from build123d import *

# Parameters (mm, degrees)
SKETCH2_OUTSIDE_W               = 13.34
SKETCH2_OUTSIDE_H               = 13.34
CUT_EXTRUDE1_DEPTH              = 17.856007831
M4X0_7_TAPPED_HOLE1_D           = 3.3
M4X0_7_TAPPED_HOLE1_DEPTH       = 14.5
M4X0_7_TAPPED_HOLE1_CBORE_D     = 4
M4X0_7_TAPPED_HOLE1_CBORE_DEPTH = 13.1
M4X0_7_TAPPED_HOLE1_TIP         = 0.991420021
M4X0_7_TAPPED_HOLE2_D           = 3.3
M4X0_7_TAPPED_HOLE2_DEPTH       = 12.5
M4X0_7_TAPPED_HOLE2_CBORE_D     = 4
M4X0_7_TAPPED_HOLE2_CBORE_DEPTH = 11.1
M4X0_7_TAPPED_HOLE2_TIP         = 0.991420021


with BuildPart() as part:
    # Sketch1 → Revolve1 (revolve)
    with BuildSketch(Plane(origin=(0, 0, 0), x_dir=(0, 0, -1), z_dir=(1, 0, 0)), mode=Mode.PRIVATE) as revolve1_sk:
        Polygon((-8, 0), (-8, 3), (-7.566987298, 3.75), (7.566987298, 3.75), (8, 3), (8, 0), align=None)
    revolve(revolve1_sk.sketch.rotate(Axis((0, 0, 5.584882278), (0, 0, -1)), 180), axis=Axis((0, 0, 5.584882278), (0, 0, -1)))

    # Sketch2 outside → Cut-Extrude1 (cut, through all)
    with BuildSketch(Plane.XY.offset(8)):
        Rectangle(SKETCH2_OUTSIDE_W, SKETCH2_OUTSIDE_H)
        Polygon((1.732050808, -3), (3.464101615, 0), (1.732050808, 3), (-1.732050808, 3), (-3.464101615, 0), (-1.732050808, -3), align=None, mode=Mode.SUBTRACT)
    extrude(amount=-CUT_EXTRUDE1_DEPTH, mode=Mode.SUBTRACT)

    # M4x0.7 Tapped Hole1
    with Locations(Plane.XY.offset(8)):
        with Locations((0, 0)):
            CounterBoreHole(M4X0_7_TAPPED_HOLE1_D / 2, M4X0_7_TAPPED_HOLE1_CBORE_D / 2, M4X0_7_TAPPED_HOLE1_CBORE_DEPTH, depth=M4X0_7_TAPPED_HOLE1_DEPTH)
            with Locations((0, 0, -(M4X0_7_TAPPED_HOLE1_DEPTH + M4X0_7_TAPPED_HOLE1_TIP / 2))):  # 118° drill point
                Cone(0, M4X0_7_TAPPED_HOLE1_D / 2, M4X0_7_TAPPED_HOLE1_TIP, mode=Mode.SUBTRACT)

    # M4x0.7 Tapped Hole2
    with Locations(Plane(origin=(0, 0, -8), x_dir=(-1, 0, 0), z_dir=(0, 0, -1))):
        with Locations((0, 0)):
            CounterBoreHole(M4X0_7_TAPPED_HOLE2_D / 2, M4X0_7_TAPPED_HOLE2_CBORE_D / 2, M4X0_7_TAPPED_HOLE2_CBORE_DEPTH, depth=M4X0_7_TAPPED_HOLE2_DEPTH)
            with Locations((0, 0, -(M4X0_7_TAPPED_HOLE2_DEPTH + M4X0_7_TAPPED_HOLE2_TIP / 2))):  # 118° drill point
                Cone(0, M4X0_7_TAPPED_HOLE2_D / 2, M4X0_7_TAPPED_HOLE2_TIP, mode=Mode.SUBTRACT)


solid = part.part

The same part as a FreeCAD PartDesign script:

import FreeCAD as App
import Part
import Sketcher

V = App.Vector
Q = App.Units.Quantity


def add_polygon(sketch, points):
    """Adds a closed chain of lines whose ends are joined by coincident constraints."""
    first, n = sketch.GeometryCount, len(points)
    for a, b in zip(points, points[1:] + points[:1]):
        sketch.addGeometry(Part.LineSegment(App.Vector(*a, 0), App.Vector(*b, 0)), False)
    for i in range(n):
        sketch.addConstraint(Sketcher.Constraint("Coincident", first + i, 2, first + (i + 1) % n, 1))

doc = App.newDocument("Part")
body = doc.addObject("PartDesign::Body", "Body")

# Sketch on YZ plane
sketch1 = body.newObject("Sketcher::SketchObject", "Sketch")
sketch1.AttachmentSupport = (doc.getObject("YZ_Plane"), [""])
sketch1.MapMode = "FlatFace"
add_polygon(sketch1, [(3, 8), (0, 8), (0, -8), (3, -8), (3.8, -7.6), (3.8, 7.6)])  # lines 0-5
sketch1.addConstraint([
    Sketcher.Constraint("Horizontal", 0),
    Sketcher.Constraint("Vertical", 1),
    Sketcher.Constraint("Horizontal", 2),
    Sketcher.Constraint("Vertical", 4),
    Sketcher.Constraint("Symmetric", 0, 2, 1, 2, -1, 1),
    Sketcher.Constraint("Vertical", 2, 2, 5, 2),
    Sketcher.Constraint("Equal", 3, 5),
    Sketcher.Constraint("DistanceX", 0, 2, 0, 1, Q("3 mm")),
    Sketcher.Constraint("DistanceY", 1, 2, 1, 1, Q("16 mm")),
    Sketcher.Constraint("Angle", 3, Q("30 deg")),
    Sketcher.Constraint("DistanceX", -1, 1, 3, 2, Q("3.75 mm")),
])
revolution = body.newObject("PartDesign::Revolution", "Revolution")
revolution.Profile = sketch1
revolution.ReferenceAxis = (sketch1, ["V_Axis"])
revolution.Angle = 360

# Sketch on XY plane
sketch2 = body.newObject("Sketcher::SketchObject", "Sketch001")
sketch2.AttachmentSupport = (doc.getObject("XY_Plane"), [""])
sketch2.MapMode = "FlatFace"
sketch2.AttachmentOffset = App.Placement(V(0, 0, 8), App.Rotation())
add_polygon(sketch2, [(-6.7, 6.7), (-6.7, -6.7), (6.7, -6.7), (6.7, 6.7)])  # lines 0-3
add_polygon(sketch2, [(3.5, 0), (1.7, -3), (-1.7, -3), (-3.5, 0), (-1.7, 3), (1.7, 3)])  # lines 4-9
sketch2.addConstraint([
    Sketcher.Constraint("Vertical", 0),
    Sketcher.Constraint("Horizontal", 1),
    Sketcher.Constraint("Vertical", 2),
    Sketcher.Constraint("Horizontal", 3),
    Sketcher.Constraint("Horizontal", 5),
    Sketcher.Constraint("Horizontal", 8),
    Sketcher.Constraint("Symmetric", 0, 2, 2, 2, -1, 1),
    Sketcher.Constraint("Symmetric", 4, 2, 7, 2, -1, 1),
    Sketcher.Constraint("Symmetric", 6, 2, 9, 2, -1, 1),
    Sketcher.Constraint("PointOnObject", 6, 2, -1),
    Sketcher.Constraint("Parallel", 6, 9),
    Sketcher.Constraint("Vertical", 5, 2, 7, 2),
    Sketcher.Constraint("Equal", 3, 0),
    Sketcher.Constraint("Angle", 4, Q("-120 deg")),
    Sketcher.Constraint("DistanceY", 4, 2, -1, 1, Q("3 mm")),
    Sketcher.Constraint("DistanceX", 1, 1, 1, 2, Q("13.34 mm")),
    Sketcher.Constraint("DistanceX", 5, 2, 5, 1, Q("3.464102 mm")),
])
pocket1 = body.newObject("PartDesign::Pocket", "Pocket")
pocket1.Profile = sketch2
pocket1.Type = "ThroughAll"

# Sketch on XY plane
sketch3 = body.newObject("Sketcher::SketchObject", "Sketch002")
sketch3.AttachmentSupport = (doc.getObject("XY_Plane"), [""])
sketch3.MapMode = "FlatFace"
sketch3.AttachmentOffset = App.Placement(V(0, 0, 8), App.Rotation())
sketch3.addGeometry(Part.Circle(V(0, 0, 0), V(0, 0, 1), 1.6), False)
sketch3.addConstraint([
    Sketcher.Constraint("Coincident", 0, 3, -1, 1),
    Sketcher.Constraint("Diameter", 0, Q("3.3 mm")),
])
doc.recompute()
hole = body.newObject("PartDesign::Hole", "Hole")
hole.Profile = sketch3
hole.ThreadType = "None"
hole.Diameter = 3.3
hole.DepthType = "Dimension"
hole.Depth = 14.5
hole.DrillPoint = "Angled"
hole.DrillPointAngle = 118
hole.HoleCutType = "Counterbore"
hole.HoleCutDiameter = 4
hole.HoleCutDepth = 13.1

# Sketch on XY plane
sketch4 = body.newObject("Sketcher::SketchObject", "Sketch003")
sketch4.AttachmentSupport = (doc.getObject("XY_Plane"), [""])
sketch4.MapMode = "FlatFace"
sketch4.AttachmentOffset = App.Placement(V(0, 0, -8), App.Rotation())
sketch4.addGeometry(Part.Circle(V(0, 0, 0), V(0, 0, 1), 1.6), False)
sketch4.addConstraint([
    Sketcher.Constraint("Coincident", 0, 3, -1, 1),
    Sketcher.Constraint("Diameter", 0, Q("3.3 mm")),
])
doc.recompute()
hole2 = body.newObject("PartDesign::Hole", "Hole001")
hole2.Profile = sketch4
hole2.ThreadType = "None"
hole2.Diameter = 3.3
hole2.DepthType = "Dimension"
hole2.Depth = 12.5
hole2.DrillPoint = "Angled"
hole2.DrillPointAngle = 118
hole2.HoleCutType = "Counterbore"
hole2.HoleCutDiameter = 4
hole2.HoleCutDepth = 11.1
hole2.Reversed = True

doc.recompute()
